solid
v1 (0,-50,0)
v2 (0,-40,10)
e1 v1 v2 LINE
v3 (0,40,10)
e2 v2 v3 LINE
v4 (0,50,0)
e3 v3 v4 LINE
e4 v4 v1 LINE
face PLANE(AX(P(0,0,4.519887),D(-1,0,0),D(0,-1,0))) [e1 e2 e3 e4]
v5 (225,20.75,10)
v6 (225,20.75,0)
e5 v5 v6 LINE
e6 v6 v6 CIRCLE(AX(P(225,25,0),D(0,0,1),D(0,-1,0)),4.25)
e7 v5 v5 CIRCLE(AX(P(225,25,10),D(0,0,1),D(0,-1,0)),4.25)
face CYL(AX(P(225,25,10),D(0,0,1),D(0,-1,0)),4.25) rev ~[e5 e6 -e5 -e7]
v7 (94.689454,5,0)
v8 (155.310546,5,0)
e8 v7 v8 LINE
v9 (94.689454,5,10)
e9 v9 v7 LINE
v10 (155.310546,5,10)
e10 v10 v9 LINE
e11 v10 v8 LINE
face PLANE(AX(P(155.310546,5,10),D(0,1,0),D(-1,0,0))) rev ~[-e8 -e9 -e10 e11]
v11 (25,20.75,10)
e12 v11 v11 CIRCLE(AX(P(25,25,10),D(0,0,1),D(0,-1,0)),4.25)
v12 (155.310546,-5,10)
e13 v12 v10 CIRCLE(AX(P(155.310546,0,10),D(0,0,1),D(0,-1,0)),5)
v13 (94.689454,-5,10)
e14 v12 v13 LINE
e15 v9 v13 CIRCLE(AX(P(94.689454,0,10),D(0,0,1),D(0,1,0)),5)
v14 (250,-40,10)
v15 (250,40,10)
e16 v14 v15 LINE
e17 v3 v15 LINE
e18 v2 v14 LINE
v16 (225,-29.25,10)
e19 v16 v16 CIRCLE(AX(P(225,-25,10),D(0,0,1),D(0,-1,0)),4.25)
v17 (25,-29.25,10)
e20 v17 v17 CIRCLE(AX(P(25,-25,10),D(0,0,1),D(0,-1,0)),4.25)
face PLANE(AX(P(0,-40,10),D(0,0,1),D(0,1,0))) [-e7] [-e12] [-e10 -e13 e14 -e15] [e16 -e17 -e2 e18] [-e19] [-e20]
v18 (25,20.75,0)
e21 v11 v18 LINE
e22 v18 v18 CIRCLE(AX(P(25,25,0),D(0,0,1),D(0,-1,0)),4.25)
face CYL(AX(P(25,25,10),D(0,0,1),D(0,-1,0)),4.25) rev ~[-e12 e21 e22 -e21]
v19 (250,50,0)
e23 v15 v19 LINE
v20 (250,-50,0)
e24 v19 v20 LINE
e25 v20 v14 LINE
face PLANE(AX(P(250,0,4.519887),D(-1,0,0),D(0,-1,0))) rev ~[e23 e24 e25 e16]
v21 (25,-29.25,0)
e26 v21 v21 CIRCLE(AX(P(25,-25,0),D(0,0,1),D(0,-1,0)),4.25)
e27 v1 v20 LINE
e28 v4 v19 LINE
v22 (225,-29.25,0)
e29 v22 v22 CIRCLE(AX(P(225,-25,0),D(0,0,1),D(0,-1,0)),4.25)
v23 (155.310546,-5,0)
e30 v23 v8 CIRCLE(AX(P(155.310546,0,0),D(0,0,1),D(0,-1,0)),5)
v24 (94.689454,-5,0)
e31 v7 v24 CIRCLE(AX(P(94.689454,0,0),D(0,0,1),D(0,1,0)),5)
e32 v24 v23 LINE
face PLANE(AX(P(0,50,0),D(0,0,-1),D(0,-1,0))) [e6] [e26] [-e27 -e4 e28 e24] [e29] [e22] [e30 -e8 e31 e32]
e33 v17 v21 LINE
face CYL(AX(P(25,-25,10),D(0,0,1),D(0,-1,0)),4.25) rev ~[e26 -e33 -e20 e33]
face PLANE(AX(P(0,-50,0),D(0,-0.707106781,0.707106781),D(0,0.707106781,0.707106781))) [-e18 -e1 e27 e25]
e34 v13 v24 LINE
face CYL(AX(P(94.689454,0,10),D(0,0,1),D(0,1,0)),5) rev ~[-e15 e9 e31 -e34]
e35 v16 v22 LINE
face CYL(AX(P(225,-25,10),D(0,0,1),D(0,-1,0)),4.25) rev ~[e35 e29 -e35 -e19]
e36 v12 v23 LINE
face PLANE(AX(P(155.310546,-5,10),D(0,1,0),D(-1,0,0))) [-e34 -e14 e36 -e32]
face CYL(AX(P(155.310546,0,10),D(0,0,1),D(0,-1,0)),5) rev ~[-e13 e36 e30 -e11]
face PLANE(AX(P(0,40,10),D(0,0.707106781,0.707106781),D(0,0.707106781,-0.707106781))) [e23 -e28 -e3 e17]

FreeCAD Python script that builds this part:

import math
import FreeCAD as App
import Part
import Sketcher
Q = App.Units.Quantity

doc = App.newDocument("Part")
body = doc.addObject("PartDesign::Body", "Body")

# Sketch on YZ plane
sketch1 = body.newObject("Sketcher::SketchObject", "Sketch")
sketch1.AttachmentSupport = (doc.getObject("YZ_Plane"), [""])
sketch1.MapMode = "FlatFace"
sketch1.addGeometry(Part.LineSegment(App.Vector(40, 10, 0), App.Vector(-40, 10, 0)), False)
sketch1.addGeometry(Part.LineSegment(App.Vector(-40, 10, 0), App.Vector(-50, 0, 0)), False)
sketch1.addGeometry(Part.LineSegment(App.Vector(-50, 0, 0), App.Vector(50, 0, 0)), False)
sketch1.addGeometry(Part.LineSegment(App.Vector(50, 0, 0), App.Vector(40, 10, 0)), False)
sketch1.addConstraint(Sketcher.Constraint("Coincident", 0, 2, 1, 1))
sketch1.addConstraint(Sketcher.Constraint("Coincident", 1, 2, 2, 1))
sketch1.addConstraint(Sketcher.Constraint("Coincident", 2, 2, 3, 1))
sketch1.addConstraint(Sketcher.Constraint("Coincident", 3, 2, 0, 1))
sketch1.addConstraint(Sketcher.Constraint("Horizontal", 0))
sketch1.addConstraint(Sketcher.Constraint("Horizontal", 2))
sketch1.addConstraint(Sketcher.Constraint("Symmetric", 1, 2, 2, 2, -1, 1))
sketch1.addConstraint(Sketcher.Constraint("Perpendicular", 1, 3))
sketch1.addConstraint(Sketcher.Constraint("Equal", 1, 3))
sketch1.addConstraint(Sketcher.Constraint("DistanceX", 0, 2, 0, 1, Q("80 mm")))
sketch1.addConstraint(Sketcher.Constraint("DistanceX", 2, 1, 2, 2, Q("100 mm")))
pad1 = body.newObject("PartDesign::Pad", "Pad")
pad1.Profile = sketch1
pad1.Length = 250

# Sketch on XY plane
sketch2 = body.newObject("Sketcher::SketchObject", "Sketch001")
sketch2.AttachmentSupport = (doc.getObject("XY_Plane"), [""])
sketch2.MapMode = "FlatFace"
sketch2.AttachmentOffset = App.Placement(App.Vector(0, 0, 10), App.Rotation())
sketch2.addGeometry(Part.Circle(App.Vector(25, 25, 0), App.Vector(0, 0, 1), 4.2), False)
sketch2.addGeometry(Part.Circle(App.Vector(25, -25, 0), App.Vector(0, 0, 1), 4.2), False)
sketch2.addGeometry(Part.Circle(App.Vector(225, -25, 0), App.Vector(0, 0, 1), 4.2), False)
sketch2.addGeometry(Part.Circle(App.Vector(225, 25, 0), App.Vector(0, 0, 1), 4.2), False)
sketch2.addConstraint(Sketcher.Constraint("Equal", 0, 1))
sketch2.addConstraint(Sketcher.Constraint("Equal", 1, 2))
sketch2.addConstraint(Sketcher.Constraint("Equal", 2, 3))
sketch2.addConstraint(Sketcher.Constraint("Symmetric", 0, 3, 1, 3, -1))
sketch2.addConstraint(Sketcher.Constraint("Symmetric", 2, 3, 3, 3, -1))
sketch2.addConstraint(Sketcher.Constraint("Horizontal", 1, 3, 2, 3))
sketch2.addConstraint(Sketcher.Constraint("Diameter", 0, Q("8.5 mm")))
sketch2.addConstraint(Sketcher.Constraint("DistanceX", -1, 1, 0, 3, Q("25 mm")))
sketch2.addConstraint(Sketcher.Constraint("DistanceY", -1, 1, 0, 3, Q("25 mm")))
sketch2.addConstraint(Sketcher.Constraint("DistanceX", -1, 1, 2, 3, Q("225 mm")))
pocket1 = body.newObject("PartDesign::Pocket", "Pocket")
pocket1.Profile = sketch2
pocket1.Length = 25

# Sketch on XY plane
sketch3 = body.newObject("Sketcher::SketchObject", "Sketch002")
sketch3.AttachmentSupport = (doc.getObject("XY_Plane"), [""])
sketch3.MapMode = "FlatFace"
sketch3.AttachmentOffset = App.Placement(App.Vector(0, 0, 10), App.Rotation())
sketch3.addGeometry(Part.ArcOfCircle(Part.Circle(App.Vector(155, 0, 0), App.Vector(0, 0, 1), 5), math.radians(-90), math.radians(90)), False)
sketch3.addGeometry(Part.LineSegment(App.Vector(155, 5, 0), App.Vector(95, 5, 0)), False)
sketch3.addGeometry(Part.ArcOfCircle(Part.Circle(App.Vector(95, 0, 0), App.Vector(0, 0, 1), 5), math.radians(90), math.radians(270)), False)
sketch3.addGeometry(Part.LineSegment(App.Vector(95, -5, 0), App.Vector(155, -5, 0)), False)
sketch3.addConstraint(Sketcher.Constraint("Tangent", 0, 2, 1, 1))
sketch3.addConstraint(Sketcher.Constraint("Tangent", 1, 2, 2, 1))
sketch3.addConstraint(Sketcher.Constraint("Tangent", 2, 2, 3, 1))
sketch3.addConstraint(Sketcher.Constraint("Tangent", 3, 2, 0, 1))
sketch3.addConstraint(Sketcher.Constraint("Horizontal", 1))
sketch3.addConstraint(Sketcher.Constraint("Horizontal", 3))
sketch3.addConstraint(Sketcher.Constraint("PointOnObject", 0, 3, -1))
sketch3.addConstraint(Sketcher.Constraint("Radius", 0, Q("5 mm")))
sketch3.addConstraint(Sketcher.Constraint("DistanceX", 1, 2, 1, 1, Q("60.621092 mm")))
sketch3.addConstraint(Sketcher.Constraint("DistanceX", -1, 1, 0, 3, Q("155.310546 mm")))
pocket2 = body.newObject("PartDesign::Pocket", "Pocket001")
pocket2.Profile = sketch3
pocket2.Type = "ThroughAll"

doc.recompute()
